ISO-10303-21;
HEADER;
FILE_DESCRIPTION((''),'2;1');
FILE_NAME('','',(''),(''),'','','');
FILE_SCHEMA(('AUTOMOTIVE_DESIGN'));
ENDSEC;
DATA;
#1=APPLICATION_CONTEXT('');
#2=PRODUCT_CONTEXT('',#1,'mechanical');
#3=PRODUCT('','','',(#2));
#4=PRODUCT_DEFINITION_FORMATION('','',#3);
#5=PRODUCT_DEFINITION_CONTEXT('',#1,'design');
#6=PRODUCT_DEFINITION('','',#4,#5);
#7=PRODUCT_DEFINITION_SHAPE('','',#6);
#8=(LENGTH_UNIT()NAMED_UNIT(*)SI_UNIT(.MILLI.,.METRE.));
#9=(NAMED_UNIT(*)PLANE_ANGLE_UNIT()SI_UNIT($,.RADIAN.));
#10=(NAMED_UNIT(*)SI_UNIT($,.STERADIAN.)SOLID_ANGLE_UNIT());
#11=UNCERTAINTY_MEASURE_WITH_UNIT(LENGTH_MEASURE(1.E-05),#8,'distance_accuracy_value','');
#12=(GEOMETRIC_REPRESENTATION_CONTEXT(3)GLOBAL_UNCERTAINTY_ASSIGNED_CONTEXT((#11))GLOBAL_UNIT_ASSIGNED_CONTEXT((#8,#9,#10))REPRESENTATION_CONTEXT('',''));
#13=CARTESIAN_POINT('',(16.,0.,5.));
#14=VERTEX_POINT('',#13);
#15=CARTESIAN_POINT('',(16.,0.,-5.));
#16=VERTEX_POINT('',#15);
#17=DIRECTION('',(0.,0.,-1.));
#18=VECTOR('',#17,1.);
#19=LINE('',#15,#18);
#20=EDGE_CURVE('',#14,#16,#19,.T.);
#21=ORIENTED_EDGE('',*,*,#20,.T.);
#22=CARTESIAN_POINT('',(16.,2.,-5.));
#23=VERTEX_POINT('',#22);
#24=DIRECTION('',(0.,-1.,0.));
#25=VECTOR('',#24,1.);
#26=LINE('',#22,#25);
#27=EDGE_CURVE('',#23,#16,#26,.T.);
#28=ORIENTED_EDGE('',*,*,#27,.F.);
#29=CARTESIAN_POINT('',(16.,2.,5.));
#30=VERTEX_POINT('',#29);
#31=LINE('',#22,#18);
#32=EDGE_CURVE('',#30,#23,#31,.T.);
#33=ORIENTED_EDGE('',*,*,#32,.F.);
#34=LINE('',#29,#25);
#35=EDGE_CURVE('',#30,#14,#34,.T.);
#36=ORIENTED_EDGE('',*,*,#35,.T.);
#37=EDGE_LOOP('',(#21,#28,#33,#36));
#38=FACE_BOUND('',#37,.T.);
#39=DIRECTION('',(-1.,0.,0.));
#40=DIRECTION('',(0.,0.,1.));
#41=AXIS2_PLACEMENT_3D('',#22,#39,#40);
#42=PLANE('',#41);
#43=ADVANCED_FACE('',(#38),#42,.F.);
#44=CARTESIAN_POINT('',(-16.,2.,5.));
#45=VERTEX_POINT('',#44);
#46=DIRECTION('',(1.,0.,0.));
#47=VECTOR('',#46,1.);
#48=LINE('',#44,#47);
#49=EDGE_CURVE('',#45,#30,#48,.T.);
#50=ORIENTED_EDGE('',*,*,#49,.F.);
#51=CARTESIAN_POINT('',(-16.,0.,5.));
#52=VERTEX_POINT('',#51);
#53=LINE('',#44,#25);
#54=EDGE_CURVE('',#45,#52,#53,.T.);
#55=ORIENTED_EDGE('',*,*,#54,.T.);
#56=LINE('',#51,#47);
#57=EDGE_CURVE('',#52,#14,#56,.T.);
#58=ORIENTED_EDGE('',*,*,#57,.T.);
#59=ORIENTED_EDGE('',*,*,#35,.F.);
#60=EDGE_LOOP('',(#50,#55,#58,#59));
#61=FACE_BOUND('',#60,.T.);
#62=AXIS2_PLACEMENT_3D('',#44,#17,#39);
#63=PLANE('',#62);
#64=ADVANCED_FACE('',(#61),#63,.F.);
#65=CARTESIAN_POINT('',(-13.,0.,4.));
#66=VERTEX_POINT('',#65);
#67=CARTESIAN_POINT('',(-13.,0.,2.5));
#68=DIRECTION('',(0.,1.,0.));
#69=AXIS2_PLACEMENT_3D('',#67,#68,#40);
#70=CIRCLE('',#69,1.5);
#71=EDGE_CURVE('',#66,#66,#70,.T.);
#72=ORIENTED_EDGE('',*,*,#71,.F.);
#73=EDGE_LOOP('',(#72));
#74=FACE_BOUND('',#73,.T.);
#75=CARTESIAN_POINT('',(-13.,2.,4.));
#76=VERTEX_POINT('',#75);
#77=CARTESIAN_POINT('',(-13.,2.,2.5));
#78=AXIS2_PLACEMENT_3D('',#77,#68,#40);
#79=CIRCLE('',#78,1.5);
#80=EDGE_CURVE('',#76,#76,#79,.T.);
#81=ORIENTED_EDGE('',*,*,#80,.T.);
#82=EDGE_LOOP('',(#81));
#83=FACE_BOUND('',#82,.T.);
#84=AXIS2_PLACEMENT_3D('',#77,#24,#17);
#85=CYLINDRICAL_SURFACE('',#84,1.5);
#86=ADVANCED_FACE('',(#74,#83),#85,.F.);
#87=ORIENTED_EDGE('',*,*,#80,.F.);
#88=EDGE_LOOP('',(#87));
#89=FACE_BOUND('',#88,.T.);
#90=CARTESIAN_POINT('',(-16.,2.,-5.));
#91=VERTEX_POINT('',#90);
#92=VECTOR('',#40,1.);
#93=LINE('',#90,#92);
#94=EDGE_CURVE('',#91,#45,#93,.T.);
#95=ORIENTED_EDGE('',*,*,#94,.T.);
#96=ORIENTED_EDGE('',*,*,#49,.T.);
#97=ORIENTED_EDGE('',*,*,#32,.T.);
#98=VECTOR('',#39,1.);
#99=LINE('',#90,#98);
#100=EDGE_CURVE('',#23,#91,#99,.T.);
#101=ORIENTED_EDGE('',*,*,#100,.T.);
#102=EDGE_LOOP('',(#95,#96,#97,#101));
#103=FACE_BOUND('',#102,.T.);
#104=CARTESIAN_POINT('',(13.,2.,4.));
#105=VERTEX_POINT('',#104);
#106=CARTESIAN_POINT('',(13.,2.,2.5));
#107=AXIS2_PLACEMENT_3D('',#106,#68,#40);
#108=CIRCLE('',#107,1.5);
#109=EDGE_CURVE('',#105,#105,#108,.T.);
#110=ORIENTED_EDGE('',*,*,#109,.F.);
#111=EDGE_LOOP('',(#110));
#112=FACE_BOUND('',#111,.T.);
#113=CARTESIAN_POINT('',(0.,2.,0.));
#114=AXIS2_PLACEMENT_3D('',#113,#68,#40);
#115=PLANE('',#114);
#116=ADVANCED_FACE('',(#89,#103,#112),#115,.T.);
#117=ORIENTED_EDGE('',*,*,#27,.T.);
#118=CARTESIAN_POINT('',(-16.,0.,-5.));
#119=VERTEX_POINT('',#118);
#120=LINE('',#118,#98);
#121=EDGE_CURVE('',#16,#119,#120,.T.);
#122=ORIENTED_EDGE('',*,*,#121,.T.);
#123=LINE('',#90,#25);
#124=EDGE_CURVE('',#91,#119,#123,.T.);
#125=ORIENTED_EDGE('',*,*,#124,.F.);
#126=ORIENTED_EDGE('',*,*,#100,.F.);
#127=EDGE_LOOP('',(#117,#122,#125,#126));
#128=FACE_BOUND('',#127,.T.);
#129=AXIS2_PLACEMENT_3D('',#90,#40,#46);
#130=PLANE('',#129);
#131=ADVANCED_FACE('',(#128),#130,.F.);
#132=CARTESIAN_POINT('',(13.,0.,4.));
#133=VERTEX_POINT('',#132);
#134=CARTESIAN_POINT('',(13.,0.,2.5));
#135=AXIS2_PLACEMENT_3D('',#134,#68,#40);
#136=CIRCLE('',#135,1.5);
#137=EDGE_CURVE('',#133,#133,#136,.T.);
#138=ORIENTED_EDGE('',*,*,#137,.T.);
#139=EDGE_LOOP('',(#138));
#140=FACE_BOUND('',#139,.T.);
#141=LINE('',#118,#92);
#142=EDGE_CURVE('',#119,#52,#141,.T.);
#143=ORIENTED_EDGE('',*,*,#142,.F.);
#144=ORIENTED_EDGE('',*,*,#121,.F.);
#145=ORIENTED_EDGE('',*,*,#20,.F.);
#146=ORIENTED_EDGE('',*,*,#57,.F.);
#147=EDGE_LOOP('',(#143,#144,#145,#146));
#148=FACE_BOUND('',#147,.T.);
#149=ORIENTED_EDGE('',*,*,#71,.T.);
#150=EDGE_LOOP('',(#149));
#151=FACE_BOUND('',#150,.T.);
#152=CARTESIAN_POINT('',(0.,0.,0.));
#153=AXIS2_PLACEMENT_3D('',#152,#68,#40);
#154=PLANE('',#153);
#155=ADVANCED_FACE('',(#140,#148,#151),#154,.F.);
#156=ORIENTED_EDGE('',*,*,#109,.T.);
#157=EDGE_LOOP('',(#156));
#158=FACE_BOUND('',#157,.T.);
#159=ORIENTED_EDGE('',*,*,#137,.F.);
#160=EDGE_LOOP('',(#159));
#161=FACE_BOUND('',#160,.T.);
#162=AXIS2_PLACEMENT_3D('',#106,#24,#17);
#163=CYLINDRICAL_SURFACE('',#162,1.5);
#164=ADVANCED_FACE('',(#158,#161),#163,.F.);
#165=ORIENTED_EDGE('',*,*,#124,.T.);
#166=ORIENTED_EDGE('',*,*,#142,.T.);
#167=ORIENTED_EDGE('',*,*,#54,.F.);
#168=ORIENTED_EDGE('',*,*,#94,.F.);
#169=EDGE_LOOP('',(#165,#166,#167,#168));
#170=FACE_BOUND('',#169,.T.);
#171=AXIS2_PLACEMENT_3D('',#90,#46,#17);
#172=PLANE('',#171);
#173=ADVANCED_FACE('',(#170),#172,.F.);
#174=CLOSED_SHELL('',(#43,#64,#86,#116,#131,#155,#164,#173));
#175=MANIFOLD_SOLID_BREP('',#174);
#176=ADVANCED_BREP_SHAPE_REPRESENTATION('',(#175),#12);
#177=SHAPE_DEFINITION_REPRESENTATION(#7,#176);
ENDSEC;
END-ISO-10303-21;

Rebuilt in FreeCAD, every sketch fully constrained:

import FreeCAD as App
import Part
import Sketcher


def add_polygon(sketch, points):
    """Adds a closed chain of lines whose ends are joined by coincident constraints."""
    first, n = sketch.GeometryCount, len(points)
    for a, b in zip(points, points[1:] + points[:1]):
        sketch.addGeometry(Part.LineSegment(App.Vector(*a, 0), App.Vector(*b, 0)), False)
    for i in range(n):
        sketch.addConstraint(Sketcher.Constraint("Coincident", first + i, 2, first + (i + 1) % n, 1))

doc = App.newDocument("Part")
body = doc.addObject("PartDesign::Body", "Body")

sketch1 = body.newObject("Sketcher::SketchObject", "Sketch")
sketch1.AttachmentSupport = (doc.getObject("XZ_Plane"), [""])
sketch1.MapMode = "FlatFace"
add_polygon(sketch1, [(-16, -5), (-16, 5), (16, 5), (16, -5)])
sketch1.addGeometry(Part.Circle(App.Vector(-13, 2.5, 0), App.Vector(0, 0, 1), 1.5), False)
sketch1.addGeometry(Part.Circle(App.Vector(13, 2.5, 0), App.Vector(0, 0, 1), 1.5), False)
sketch1.addConstraint([
    Sketcher.Constraint("Vertical", 0),
    Sketcher.Constraint("Horizontal", 1),
    Sketcher.Constraint("Vertical", 2),
    Sketcher.Constraint("Horizontal", 3),
    Sketcher.Constraint("Equal", 4, 5),
    Sketcher.Constraint("Symmetric", 0, 2, 2, 2, -1, 1),
    Sketcher.Constraint("Symmetric", 4, 3, 5, 3, -2),
    Sketcher.Constraint("Diameter", 4, 3.0),
    Sketcher.Constraint("DistanceX", 1, 1, 1, 2, 32.0),
    Sketcher.Constraint("DistanceY", 0, 1, 0, 2, 10.0),
    Sketcher.Constraint("DistanceX", 4, 3, -1, 1, 13.0),
    Sketcher.Constraint("DistanceY", -1, 1, 4, 3, 2.5),
])
pad1 = body.newObject("PartDesign::Pad", "Pad")
pad1.Profile = sketch1
pad1.Length = 2
pad1.Reversed = True

doc.recompute()
